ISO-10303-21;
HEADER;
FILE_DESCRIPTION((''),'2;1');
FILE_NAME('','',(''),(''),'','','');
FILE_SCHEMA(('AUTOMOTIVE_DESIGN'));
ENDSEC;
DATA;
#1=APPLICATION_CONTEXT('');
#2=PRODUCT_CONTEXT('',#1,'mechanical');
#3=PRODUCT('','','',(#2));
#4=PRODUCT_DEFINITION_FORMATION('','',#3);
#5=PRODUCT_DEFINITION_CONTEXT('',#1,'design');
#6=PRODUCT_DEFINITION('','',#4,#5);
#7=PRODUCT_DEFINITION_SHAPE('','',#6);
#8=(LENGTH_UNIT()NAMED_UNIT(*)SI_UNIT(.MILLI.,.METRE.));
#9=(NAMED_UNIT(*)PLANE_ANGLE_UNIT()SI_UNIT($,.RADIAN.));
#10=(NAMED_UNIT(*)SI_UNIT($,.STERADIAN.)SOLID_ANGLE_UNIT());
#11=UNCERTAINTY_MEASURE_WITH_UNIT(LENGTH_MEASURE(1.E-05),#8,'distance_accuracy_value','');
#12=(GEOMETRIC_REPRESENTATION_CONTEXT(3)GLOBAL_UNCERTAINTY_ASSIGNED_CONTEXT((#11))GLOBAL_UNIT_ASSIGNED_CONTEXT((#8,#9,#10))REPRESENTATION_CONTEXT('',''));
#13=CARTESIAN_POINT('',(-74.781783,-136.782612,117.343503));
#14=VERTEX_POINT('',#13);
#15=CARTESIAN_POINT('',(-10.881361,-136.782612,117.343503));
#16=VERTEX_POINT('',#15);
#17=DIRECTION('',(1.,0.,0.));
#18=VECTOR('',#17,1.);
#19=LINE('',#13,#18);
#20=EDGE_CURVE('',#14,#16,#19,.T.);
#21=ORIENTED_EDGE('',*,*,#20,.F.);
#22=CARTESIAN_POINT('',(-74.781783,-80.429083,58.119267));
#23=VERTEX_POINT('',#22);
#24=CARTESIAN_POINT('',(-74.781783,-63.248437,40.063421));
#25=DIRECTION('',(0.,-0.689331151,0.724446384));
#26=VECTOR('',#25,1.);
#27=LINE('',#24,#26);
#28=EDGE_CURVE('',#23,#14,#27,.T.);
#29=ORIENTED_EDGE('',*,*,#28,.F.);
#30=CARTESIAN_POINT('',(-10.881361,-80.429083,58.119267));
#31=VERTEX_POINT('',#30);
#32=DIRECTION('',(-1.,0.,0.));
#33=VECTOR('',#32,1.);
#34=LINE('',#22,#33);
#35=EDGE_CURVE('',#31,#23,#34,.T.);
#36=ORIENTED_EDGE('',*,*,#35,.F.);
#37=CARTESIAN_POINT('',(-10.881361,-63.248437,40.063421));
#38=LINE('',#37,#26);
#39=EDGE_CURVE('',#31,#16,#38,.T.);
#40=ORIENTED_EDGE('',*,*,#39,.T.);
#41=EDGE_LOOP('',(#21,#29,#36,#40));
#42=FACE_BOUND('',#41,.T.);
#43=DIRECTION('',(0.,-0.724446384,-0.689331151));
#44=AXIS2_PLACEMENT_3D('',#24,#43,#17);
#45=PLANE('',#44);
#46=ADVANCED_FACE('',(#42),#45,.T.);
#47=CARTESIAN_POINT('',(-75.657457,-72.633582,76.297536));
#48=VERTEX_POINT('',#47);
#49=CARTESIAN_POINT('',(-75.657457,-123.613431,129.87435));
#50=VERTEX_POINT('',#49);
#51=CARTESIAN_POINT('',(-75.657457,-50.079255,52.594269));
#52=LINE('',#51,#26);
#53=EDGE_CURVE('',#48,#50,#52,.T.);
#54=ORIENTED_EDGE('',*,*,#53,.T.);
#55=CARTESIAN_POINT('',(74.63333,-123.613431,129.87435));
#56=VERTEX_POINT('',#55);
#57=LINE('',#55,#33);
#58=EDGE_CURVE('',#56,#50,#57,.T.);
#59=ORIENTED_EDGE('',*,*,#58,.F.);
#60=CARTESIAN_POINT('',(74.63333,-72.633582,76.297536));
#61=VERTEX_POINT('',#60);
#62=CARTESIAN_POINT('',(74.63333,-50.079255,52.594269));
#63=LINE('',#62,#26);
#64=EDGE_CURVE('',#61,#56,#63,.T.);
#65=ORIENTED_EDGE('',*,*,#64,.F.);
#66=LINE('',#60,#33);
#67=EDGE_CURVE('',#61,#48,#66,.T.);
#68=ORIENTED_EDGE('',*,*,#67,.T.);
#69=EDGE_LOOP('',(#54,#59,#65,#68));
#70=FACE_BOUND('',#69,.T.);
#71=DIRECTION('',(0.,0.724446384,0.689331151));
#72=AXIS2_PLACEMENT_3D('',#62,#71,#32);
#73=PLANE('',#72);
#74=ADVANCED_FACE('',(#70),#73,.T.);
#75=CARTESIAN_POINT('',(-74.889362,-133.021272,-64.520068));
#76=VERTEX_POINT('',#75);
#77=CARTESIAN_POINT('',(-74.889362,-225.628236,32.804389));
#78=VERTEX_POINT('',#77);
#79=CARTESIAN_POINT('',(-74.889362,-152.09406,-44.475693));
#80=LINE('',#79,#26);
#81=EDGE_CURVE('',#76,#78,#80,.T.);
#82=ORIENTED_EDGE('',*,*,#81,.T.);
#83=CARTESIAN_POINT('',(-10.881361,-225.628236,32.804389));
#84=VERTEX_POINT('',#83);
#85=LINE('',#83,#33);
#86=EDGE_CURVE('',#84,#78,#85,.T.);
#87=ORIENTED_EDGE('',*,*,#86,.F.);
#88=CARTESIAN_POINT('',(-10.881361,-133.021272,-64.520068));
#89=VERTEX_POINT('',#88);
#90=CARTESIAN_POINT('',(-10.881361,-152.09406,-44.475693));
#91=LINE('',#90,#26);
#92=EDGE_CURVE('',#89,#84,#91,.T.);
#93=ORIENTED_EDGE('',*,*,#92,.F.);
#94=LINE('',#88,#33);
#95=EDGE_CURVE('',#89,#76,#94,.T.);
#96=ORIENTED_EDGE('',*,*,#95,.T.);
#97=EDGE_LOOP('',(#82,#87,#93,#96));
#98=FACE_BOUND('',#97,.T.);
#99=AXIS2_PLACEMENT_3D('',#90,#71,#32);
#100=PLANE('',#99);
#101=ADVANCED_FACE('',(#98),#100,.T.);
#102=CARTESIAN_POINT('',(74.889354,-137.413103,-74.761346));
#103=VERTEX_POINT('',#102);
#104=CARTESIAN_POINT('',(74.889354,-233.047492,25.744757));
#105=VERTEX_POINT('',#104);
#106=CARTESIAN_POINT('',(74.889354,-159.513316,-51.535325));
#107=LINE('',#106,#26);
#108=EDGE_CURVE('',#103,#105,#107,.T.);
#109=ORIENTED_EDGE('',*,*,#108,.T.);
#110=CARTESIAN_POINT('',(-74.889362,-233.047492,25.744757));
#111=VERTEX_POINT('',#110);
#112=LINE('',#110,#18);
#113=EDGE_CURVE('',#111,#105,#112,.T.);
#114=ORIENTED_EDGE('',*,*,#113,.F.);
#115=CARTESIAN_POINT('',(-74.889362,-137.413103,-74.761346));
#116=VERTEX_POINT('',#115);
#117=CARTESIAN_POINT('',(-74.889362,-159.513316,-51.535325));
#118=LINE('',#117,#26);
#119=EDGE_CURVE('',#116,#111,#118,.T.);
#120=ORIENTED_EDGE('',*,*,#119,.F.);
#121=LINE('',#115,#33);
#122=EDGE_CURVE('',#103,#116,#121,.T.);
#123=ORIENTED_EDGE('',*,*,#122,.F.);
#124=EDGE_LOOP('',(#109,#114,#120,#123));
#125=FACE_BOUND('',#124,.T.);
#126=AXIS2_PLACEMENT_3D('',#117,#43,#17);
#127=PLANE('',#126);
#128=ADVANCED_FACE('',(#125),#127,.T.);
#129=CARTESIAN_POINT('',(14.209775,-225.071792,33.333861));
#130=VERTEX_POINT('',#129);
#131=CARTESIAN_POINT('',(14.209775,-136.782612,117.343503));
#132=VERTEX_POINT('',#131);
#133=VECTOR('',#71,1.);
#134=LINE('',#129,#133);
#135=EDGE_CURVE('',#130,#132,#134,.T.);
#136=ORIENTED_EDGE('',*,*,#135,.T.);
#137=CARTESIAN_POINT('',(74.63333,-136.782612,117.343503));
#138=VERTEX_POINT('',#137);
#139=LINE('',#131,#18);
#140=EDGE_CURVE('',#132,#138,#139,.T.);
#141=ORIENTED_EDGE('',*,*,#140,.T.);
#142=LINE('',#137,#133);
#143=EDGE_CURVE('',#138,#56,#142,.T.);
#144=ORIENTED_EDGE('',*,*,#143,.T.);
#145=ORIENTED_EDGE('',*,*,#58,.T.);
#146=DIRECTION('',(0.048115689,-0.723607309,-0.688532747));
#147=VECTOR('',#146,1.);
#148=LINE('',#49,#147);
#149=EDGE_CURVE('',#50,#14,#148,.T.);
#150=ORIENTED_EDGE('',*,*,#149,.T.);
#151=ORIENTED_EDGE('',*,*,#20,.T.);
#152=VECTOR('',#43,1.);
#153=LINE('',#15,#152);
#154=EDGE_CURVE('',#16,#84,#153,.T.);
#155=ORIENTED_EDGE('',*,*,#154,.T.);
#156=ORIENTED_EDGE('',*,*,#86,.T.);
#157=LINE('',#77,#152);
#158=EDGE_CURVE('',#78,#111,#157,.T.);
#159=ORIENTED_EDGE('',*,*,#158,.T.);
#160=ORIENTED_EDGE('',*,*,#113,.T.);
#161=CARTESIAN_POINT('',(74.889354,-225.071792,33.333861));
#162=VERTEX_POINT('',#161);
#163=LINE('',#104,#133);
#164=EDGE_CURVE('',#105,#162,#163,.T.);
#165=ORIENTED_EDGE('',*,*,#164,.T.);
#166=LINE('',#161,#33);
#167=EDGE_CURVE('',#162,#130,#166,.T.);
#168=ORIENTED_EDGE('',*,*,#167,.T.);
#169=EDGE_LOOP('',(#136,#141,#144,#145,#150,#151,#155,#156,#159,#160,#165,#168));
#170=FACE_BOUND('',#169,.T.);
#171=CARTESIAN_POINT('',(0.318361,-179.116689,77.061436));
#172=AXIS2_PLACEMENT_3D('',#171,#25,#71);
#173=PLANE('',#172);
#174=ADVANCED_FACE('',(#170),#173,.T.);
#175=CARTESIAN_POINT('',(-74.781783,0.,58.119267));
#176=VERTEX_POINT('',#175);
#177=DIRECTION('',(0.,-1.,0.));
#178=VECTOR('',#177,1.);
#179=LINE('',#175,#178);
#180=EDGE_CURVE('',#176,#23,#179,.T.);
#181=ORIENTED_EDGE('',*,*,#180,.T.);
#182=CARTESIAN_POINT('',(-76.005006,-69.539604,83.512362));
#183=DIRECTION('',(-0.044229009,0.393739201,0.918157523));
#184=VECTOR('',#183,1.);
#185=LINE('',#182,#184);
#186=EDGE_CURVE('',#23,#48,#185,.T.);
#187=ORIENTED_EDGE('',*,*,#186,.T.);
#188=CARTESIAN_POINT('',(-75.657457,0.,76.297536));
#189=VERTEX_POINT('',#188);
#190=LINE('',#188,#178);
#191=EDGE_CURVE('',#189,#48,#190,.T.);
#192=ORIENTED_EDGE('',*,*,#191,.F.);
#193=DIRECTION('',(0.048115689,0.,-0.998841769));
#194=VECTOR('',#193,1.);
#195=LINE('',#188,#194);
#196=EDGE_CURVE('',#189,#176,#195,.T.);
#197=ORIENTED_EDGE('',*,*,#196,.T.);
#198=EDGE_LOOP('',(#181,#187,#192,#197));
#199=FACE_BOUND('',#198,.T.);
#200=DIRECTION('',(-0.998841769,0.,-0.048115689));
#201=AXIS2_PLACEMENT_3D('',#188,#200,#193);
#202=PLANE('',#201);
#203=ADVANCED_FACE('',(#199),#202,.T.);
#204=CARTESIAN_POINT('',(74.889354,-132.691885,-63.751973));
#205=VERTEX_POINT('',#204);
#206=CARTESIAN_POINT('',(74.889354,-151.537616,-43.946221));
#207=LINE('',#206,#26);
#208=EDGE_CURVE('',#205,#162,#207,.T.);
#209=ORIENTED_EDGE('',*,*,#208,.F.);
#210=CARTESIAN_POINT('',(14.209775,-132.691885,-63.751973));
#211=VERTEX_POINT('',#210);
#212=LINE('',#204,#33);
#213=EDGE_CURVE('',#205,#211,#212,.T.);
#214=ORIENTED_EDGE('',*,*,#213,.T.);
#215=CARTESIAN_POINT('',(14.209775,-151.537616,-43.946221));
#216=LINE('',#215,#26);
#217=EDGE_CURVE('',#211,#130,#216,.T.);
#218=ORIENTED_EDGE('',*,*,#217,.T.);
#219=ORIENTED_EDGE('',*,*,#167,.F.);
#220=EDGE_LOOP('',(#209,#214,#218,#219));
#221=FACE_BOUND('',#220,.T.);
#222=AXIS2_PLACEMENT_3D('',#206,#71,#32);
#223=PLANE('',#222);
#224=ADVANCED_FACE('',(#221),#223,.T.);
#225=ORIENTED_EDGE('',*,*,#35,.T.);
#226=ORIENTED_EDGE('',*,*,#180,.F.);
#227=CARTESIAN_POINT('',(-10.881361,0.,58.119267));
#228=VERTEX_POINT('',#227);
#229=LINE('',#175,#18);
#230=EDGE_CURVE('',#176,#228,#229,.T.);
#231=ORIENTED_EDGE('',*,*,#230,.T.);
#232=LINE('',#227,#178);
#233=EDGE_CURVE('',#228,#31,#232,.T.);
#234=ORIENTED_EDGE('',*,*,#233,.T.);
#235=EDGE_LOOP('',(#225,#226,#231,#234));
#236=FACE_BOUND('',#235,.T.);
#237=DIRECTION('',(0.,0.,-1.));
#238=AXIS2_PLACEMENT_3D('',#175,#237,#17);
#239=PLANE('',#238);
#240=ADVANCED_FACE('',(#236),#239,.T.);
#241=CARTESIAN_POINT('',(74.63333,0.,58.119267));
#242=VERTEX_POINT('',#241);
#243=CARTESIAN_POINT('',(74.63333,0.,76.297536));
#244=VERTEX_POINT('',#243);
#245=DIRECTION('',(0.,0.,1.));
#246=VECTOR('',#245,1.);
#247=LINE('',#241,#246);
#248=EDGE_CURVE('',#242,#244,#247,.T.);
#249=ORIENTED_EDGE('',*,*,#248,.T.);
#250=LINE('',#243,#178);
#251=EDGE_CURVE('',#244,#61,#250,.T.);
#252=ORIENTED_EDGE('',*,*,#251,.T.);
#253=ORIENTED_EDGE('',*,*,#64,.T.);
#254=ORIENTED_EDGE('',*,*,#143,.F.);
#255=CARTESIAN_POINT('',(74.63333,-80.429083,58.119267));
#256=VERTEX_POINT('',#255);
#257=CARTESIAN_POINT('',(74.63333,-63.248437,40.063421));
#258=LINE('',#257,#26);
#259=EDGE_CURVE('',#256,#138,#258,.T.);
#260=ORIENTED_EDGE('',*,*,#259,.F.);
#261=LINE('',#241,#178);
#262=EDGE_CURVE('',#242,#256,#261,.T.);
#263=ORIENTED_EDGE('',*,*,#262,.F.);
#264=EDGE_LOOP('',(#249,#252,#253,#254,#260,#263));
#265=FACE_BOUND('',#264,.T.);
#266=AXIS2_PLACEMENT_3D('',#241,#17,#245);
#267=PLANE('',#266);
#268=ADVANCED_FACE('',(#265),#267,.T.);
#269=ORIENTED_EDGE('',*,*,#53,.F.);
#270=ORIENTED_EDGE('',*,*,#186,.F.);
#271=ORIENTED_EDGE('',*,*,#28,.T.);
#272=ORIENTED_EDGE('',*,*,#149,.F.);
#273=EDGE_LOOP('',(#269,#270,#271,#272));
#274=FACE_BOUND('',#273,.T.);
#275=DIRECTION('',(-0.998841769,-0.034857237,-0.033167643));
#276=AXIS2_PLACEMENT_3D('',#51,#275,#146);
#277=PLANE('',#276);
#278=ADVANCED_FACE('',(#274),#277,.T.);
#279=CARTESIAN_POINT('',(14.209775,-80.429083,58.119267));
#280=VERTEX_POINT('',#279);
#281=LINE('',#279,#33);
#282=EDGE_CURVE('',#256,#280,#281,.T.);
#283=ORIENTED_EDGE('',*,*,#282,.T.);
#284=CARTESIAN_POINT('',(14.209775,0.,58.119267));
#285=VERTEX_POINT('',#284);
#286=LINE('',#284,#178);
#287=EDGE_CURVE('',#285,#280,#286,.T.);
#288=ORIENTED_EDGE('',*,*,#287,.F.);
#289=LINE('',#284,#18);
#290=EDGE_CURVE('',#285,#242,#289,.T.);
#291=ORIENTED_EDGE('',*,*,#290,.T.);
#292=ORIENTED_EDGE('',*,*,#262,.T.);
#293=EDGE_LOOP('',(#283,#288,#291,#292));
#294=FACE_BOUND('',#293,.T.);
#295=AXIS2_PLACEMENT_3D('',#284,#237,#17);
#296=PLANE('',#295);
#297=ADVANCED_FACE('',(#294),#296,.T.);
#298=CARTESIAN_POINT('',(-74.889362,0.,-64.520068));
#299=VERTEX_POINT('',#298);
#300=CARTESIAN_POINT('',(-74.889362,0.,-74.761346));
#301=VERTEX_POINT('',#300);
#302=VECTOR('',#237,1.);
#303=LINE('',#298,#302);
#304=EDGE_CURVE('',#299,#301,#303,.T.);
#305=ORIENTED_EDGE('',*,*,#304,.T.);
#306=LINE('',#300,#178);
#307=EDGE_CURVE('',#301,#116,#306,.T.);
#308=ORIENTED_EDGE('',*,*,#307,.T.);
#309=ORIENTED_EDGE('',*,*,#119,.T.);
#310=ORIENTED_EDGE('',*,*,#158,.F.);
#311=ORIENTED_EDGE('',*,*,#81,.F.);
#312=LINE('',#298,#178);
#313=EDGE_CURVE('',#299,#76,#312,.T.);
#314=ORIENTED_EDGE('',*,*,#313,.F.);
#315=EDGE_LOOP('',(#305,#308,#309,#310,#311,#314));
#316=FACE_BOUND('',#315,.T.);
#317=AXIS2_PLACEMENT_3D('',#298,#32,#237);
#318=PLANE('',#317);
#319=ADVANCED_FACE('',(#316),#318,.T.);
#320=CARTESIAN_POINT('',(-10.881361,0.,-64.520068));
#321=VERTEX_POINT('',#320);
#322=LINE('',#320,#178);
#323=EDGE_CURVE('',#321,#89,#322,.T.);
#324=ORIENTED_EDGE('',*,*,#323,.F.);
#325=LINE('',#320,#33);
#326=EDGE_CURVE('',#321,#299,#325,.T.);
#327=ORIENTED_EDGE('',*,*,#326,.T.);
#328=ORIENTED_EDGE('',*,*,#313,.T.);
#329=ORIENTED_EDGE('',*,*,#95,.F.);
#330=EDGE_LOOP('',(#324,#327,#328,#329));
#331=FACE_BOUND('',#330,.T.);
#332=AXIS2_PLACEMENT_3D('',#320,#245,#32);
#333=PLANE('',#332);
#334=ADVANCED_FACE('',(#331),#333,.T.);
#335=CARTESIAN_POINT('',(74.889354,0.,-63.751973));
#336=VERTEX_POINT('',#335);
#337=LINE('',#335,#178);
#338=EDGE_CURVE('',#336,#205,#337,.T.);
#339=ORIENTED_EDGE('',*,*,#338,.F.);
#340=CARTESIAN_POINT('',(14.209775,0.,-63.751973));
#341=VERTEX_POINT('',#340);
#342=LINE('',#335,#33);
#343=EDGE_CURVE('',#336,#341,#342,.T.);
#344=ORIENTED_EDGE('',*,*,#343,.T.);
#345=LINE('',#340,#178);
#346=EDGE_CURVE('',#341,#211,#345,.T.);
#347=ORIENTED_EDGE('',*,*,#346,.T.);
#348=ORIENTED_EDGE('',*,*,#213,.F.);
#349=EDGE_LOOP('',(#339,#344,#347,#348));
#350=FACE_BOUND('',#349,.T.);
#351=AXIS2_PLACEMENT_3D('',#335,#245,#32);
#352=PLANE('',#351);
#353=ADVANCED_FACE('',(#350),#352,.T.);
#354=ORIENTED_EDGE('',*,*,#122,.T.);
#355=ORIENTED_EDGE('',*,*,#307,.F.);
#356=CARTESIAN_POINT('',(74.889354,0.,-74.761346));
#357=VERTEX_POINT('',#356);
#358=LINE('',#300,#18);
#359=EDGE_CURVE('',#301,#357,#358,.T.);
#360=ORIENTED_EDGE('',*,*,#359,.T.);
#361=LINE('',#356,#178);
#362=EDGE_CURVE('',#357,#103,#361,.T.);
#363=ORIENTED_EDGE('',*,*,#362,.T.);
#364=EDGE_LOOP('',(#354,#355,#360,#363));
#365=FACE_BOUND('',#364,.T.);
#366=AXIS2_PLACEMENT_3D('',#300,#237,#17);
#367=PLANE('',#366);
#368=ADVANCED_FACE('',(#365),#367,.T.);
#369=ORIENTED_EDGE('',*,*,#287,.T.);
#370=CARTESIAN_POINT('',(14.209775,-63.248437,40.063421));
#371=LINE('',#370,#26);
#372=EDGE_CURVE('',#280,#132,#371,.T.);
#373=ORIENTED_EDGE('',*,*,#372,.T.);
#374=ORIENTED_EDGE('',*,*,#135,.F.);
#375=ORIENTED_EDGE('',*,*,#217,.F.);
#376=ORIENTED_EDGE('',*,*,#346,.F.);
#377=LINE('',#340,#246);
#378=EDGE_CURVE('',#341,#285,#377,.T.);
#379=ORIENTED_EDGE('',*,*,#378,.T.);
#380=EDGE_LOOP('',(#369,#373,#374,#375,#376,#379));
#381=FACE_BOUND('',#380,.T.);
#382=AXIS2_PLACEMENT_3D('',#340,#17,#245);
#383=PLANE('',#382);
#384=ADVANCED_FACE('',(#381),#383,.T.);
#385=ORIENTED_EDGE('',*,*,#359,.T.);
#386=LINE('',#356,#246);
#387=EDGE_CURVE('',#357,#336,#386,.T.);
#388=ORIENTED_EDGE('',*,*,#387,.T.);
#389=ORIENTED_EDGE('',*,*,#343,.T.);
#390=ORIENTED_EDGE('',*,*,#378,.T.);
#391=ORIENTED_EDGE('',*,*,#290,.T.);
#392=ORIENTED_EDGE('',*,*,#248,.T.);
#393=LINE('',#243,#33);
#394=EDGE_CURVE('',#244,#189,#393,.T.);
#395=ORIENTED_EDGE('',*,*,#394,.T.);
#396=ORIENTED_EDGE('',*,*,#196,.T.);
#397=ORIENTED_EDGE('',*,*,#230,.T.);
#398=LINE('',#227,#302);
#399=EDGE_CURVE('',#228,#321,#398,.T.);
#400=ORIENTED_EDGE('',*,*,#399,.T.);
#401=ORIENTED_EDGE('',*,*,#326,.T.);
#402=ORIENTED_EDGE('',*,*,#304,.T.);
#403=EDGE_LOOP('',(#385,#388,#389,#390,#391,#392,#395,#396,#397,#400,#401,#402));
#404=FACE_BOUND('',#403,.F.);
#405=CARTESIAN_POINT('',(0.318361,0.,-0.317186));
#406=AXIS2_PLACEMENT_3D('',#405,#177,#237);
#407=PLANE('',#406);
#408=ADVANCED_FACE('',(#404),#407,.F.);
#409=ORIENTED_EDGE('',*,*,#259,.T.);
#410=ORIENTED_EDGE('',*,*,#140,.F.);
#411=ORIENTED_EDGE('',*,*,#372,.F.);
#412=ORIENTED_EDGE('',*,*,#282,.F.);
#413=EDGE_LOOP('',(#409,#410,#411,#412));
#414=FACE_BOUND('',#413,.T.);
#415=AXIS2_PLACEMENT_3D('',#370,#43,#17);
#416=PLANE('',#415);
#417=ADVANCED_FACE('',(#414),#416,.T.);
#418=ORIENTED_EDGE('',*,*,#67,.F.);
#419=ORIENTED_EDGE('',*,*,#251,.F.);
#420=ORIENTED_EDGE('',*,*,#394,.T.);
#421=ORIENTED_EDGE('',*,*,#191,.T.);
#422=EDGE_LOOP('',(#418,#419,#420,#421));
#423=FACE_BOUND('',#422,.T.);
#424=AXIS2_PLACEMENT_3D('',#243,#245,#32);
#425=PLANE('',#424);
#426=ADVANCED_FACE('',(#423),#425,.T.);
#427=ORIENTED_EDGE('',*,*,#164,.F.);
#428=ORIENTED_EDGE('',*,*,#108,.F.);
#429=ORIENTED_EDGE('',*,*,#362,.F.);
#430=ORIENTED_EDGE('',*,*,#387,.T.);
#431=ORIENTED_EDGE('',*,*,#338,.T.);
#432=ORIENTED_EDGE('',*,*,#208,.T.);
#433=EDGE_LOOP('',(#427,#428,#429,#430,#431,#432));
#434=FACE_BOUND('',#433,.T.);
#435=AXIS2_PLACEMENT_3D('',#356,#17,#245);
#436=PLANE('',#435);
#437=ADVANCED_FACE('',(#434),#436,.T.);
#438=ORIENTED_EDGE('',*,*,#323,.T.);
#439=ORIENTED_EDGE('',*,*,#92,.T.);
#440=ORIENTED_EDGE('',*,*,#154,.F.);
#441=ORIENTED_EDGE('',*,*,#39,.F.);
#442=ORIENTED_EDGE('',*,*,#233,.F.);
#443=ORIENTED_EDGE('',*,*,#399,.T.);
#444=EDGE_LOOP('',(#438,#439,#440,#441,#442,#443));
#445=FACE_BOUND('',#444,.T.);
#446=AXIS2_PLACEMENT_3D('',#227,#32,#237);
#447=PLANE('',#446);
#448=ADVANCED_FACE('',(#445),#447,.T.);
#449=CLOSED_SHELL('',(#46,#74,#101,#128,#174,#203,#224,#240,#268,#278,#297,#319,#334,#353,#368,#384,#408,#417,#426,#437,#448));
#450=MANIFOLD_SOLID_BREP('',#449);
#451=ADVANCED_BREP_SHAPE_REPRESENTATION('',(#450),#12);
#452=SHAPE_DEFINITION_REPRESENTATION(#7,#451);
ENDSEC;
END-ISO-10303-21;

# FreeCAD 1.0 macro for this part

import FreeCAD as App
import Part
import Sketcher
Q = App.Units.Quantity


def add_polygon(sketch, points):
    """Adds a closed chain of lines whose ends are joined by coincident constraints."""
    first, n = sketch.GeometryCount, len(points)
    for a, b in zip(points, points[1:] + points[:1]):
        sketch.addGeometry(Part.LineSegment(App.Vector(*a, 0), App.Vector(*b, 0)), False)
    for i in range(n):
        sketch.addConstraint(Sketcher.Constraint("Coincident", first + i, 2, first + (i + 1) % n, 1))

doc = App.newDocument("Part")
body = doc.addObject("PartDesign::Body", "Body")

sketch1 = body.newObject("Sketcher::SketchObject", "Sketch")
sketch1.AttachmentSupport = (doc.getObject("XZ_Plane"), [""])
sketch1.MapMode = "FlatFace"
add_polygon(sketch1, [(75, 76), (-76, 76), (-75, 58), (-11, 58), (-11, -65), (-75, -65), (-75, -75), (75, -75), (75, -64), (14, -64), (14, 58), (75, 58)])
sketch1.addConstraint(Sketcher.Constraint("Horizontal", 0))
sketch1.addConstraint(Sketcher.Constraint("Horizontal", 2))
sketch1.addConstraint(Sketcher.Constraint("Vertical", 3))
sketch1.addConstraint(Sketcher.Constraint("Horizontal", 4))
sketch1.addConstraint(Sketcher.Constraint("Vertical", 5))
sketch1.addConstraint(Sketcher.Constraint("Horizontal", 6))
sketch1.addConstraint(Sketcher.Constraint("Vertical", 7))
sketch1.addConstraint(Sketcher.Constraint("Horizontal", 8))
sketch1.addConstraint(Sketcher.Constraint("Vertical", 9))
sketch1.addConstraint(Sketcher.Constraint("Horizontal", 10))
sketch1.addConstraint(Sketcher.Constraint("Vertical", 11))
sketch1.addConstraint(Sketcher.Constraint("Horizontal", 2, 2, 9, 2))
sketch1.addConstraint(Sketcher.Constraint("DistanceX", 4, 2, 4, 1, Q("2.52 in")))
sketch1.addConstraint(Sketcher.Constraint("DistanceX", 6, 1, 6, 2, Q("5.8967999 in")))
sketch1.addConstraint(Sketcher.Constraint("DistanceY", 5, 2, 5, 1, Q("0.4031999 in")))
sketch1.addConstraint(Sketcher.Constraint("DistanceY", 3, 2, 0, 2, Q("5.5440002 in")))
sketch1.addConstraint(Sketcher.Constraint("DistanceX", 2, 2, -1, 1, Q("0.4284 in")))
sketch1.addConstraint(Sketcher.Constraint("DistanceX", 8, 2, 8, 1, Q("60.679579 mm")))
sketch1.addConstraint(Sketcher.Constraint("DistanceY", 9, 1, 9, 2, Q("121.87124 mm")))
sketch1.addConstraint(Sketcher.Constraint("DistanceY", 11, 1, 11, 2, Q("18.178269 mm")))
sketch1.addConstraint(Sketcher.Constraint("Distance", 1, Q("18.199348 mm")))
sketch1.addConstraint(Sketcher.Constraint("DistanceX", 0, 2, 0, 1, Q("150.290787 mm")))
sketch1.addConstraint(Sketcher.Constraint("DistanceX", 2, 1, 2, 2, Q("63.900422 mm")))
sketch1.addConstraint(Sketcher.Constraint("DistanceY", 3, 2, -1, 1, Q("64.520068 mm")))

sketch2 = body.newObject("Sketcher::SketchObject", "Sketch001")
sketch2.AttachmentSupport = (doc.getObject("YZ_Plane"), [""])
sketch2.MapMode = "FlatFace"
sketch2.addGeometry(Part.LineSegment(App.Vector(0, 0, 0), App.Vector(-105, 0, 0)), False)
sketch2.addGeometry(Part.LineSegment(App.Vector(-105, 0, 0), App.Vector(-179, 77, 0)), False)
sketch2.addConstraint(Sketcher.Constraint("Coincident", 0, 2, 1, 1))
sketch2.addConstraint(Sketcher.Constraint("Horizontal", 0))
sketch2.addConstraint(Sketcher.Constraint("Coincident", 0, 1, -1, 1))
sketch2.addConstraint(Sketcher.Constraint("DistanceX", 0, 2, 0, 1, Q("105.35273 mm")))
sketch2.addConstraint(Sketcher.Constraint("DistanceY", -1, 1, 1, 2, Q("77.280082 mm")))
sketch2.addConstraint(Sketcher.Constraint("Distance", 1, Q("106.674674 mm")))
doc.recompute()

additivepipe = body.newObject("PartDesign::AdditivePipe", "AdditivePipe")
additivepipe.Profile = sketch1
additivepipe.Spine = (sketch2, ["Edge1", "Edge2"])
additivepipe.Transition = "Right corner"

doc.recompute()
